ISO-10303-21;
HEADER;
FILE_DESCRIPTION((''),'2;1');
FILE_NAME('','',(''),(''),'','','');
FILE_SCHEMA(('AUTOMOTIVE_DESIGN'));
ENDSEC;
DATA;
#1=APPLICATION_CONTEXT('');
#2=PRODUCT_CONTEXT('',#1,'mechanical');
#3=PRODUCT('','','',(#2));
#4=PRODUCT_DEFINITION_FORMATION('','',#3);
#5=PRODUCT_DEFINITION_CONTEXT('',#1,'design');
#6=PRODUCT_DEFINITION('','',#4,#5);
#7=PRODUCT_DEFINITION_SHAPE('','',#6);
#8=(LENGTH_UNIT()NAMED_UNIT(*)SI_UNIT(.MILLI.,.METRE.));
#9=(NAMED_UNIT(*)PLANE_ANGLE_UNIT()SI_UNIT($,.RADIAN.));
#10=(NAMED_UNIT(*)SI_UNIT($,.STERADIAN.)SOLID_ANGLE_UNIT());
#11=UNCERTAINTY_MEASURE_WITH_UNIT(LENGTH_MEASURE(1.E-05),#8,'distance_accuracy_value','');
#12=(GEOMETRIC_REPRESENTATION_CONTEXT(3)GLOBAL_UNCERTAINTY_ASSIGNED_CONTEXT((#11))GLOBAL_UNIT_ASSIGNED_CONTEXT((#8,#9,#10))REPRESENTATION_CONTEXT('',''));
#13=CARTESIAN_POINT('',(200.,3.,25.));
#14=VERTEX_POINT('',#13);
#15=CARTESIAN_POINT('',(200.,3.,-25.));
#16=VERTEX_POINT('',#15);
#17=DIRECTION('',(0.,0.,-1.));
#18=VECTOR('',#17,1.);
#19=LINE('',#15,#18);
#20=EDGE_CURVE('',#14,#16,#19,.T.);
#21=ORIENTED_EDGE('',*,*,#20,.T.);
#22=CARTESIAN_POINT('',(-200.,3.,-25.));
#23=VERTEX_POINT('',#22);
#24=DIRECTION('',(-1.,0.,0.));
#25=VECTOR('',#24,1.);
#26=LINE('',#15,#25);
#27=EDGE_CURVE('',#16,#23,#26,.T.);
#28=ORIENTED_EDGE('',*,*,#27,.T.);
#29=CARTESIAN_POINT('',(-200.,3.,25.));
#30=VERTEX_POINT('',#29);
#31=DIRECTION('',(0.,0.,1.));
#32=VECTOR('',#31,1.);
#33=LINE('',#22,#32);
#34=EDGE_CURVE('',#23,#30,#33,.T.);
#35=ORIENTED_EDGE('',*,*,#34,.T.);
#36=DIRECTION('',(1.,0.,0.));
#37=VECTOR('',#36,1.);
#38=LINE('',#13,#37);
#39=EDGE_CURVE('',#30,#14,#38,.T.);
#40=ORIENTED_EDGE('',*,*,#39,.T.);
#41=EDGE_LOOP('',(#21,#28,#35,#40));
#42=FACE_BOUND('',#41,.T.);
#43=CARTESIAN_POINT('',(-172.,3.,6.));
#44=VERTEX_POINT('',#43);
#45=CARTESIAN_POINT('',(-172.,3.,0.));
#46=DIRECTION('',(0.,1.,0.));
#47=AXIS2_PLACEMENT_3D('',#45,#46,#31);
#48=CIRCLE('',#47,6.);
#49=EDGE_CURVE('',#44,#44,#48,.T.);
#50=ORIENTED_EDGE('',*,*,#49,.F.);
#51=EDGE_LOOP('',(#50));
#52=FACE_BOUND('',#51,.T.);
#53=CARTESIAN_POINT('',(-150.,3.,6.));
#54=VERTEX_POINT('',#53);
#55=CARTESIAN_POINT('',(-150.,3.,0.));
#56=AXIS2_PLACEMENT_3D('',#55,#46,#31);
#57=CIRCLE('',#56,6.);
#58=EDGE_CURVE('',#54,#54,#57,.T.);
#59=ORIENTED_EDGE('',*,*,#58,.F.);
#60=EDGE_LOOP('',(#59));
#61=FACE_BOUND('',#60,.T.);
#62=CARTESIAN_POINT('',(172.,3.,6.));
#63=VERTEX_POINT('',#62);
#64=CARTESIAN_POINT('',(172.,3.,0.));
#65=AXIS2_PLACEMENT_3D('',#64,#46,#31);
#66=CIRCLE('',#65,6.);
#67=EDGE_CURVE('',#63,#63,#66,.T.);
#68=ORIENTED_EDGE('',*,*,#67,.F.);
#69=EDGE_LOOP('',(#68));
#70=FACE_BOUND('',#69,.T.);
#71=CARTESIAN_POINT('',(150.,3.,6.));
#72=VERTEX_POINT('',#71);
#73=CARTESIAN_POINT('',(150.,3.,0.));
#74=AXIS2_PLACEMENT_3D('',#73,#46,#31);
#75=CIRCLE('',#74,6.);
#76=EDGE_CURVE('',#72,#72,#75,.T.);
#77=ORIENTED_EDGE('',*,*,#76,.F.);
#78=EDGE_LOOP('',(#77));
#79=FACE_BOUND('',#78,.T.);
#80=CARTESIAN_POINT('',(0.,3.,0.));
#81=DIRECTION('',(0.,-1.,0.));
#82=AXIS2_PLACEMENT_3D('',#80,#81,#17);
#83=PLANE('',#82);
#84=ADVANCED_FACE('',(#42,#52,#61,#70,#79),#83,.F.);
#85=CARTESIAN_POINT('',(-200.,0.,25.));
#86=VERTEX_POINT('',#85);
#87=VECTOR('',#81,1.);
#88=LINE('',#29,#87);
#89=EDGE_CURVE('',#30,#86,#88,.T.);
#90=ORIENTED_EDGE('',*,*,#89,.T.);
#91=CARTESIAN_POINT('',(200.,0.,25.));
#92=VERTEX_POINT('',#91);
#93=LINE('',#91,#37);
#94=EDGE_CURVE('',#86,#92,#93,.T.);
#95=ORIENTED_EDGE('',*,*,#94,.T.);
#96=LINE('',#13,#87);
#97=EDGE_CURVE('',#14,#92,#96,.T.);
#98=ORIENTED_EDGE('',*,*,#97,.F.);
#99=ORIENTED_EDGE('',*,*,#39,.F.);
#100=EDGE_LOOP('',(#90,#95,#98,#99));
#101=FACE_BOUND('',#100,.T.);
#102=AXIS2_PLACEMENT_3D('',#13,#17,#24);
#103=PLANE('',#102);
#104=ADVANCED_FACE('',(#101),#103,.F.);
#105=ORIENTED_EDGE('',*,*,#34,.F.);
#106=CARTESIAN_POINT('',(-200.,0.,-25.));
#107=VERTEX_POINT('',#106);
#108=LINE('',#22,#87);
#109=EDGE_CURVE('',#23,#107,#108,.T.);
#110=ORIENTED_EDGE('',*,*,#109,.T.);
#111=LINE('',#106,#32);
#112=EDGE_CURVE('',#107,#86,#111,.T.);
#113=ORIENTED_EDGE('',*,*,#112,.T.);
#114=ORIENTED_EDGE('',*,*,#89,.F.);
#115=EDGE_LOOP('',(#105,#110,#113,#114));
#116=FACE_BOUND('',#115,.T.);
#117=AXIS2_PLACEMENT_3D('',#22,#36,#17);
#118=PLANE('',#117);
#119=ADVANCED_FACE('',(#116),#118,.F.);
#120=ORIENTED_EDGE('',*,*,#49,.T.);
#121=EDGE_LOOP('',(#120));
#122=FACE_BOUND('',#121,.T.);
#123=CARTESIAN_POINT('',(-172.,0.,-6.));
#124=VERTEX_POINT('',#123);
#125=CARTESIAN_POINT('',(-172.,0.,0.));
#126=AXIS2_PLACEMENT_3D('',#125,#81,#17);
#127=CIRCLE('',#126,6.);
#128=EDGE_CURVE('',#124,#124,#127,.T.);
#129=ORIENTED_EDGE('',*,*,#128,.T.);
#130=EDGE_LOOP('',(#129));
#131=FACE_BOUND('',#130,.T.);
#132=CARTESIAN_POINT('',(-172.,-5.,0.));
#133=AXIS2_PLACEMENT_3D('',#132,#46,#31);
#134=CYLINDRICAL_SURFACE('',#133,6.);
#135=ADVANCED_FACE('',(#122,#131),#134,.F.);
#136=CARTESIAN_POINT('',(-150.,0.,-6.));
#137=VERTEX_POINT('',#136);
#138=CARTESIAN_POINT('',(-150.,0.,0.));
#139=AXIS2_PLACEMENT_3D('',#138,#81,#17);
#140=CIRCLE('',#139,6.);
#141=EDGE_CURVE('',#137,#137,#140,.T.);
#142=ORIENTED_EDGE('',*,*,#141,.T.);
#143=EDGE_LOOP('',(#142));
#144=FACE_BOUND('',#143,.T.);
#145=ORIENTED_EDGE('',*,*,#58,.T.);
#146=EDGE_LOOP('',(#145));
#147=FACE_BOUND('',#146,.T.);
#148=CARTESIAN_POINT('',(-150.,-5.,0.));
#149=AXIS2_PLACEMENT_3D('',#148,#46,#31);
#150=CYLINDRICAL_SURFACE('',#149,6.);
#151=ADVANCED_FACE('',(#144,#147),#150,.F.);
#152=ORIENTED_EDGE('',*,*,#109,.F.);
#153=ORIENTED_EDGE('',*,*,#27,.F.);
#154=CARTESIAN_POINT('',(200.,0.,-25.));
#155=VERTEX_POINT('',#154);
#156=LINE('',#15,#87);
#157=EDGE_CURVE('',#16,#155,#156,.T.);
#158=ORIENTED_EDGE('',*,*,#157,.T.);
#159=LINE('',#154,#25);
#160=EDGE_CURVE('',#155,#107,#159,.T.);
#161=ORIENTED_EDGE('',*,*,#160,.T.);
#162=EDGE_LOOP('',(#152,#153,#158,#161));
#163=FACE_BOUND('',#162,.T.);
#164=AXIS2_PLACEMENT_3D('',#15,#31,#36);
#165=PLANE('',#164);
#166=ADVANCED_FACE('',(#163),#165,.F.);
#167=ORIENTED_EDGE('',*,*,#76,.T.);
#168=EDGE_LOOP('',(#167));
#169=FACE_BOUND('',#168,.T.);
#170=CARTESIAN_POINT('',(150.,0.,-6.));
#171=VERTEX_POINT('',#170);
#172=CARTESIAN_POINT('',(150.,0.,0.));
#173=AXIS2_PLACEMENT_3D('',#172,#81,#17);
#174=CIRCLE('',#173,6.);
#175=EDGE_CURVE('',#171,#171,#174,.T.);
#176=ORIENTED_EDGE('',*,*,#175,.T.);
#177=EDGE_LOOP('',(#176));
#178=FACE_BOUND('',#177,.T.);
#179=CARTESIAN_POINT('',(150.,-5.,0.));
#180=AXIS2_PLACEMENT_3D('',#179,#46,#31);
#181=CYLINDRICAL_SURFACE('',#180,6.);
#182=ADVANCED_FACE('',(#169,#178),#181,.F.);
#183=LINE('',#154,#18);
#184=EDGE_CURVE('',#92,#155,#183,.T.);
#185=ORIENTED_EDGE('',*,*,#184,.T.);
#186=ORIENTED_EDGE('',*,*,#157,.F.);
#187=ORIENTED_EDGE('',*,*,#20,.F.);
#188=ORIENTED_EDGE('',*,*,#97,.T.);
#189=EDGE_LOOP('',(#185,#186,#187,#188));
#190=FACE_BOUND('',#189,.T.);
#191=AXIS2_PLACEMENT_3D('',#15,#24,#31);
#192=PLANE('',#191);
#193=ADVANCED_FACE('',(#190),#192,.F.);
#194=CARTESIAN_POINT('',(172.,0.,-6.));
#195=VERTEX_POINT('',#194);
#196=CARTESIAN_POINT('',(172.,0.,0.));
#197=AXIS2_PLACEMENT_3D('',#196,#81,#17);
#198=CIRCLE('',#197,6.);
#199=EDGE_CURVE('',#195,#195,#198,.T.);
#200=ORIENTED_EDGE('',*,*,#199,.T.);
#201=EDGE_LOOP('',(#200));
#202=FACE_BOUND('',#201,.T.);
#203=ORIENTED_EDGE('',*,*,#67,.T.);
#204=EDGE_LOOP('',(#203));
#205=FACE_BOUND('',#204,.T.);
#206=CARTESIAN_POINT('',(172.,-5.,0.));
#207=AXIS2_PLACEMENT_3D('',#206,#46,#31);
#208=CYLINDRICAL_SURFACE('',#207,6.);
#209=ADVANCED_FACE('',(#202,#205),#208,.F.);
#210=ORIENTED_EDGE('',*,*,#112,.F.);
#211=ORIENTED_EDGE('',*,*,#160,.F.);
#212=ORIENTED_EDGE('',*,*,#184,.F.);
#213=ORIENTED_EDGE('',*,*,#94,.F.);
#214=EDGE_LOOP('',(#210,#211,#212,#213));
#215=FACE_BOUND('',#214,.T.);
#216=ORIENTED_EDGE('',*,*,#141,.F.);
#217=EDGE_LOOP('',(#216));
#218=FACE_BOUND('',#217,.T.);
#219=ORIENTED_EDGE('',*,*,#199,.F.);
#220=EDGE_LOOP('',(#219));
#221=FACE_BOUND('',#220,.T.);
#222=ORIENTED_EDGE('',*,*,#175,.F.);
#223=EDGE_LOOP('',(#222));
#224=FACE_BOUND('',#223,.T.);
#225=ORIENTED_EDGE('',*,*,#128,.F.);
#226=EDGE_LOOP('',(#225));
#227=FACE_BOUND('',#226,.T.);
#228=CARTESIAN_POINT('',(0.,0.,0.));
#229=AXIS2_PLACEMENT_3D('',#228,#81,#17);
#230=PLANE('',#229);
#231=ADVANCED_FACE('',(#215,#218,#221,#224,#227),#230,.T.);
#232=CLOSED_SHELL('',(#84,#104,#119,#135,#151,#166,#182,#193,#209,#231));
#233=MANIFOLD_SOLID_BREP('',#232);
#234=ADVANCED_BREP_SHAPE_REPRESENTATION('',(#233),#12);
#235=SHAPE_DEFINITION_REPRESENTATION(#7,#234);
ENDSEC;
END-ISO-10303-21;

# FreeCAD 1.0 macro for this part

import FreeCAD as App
import Part
import Sketcher
from FreeCAD import Vector

doc = App.newDocument("Part")
body = doc.addObject("PartDesign::Body", "Body")

sketch1 = doc.addObject("Sketcher::SketchObject", "Sketch")
body.addObject(sketch1)
sketch1.AttachmentSupport = (doc.XZ_Plane, [""])
sketch1.MapMode = "FlatFace"
sketch1.addGeometry([
    Part.LineSegment(Vector(-200, -25, 0), Vector(-200, 25, 0)),
    Part.LineSegment(Vector(-200, 25, 0), Vector(200, 25, 0)),
    Part.LineSegment(Vector(200, 25, 0), Vector(200, -25, 0)),
    Part.LineSegment(Vector(200, -25, 0), Vector(-200, -25, 0)),
], False)
sketch1.addConstraint([
    Sketcher.Constraint("Coincident", 0, 2, 1, 1),
    Sketcher.Constraint("Coincident", 1, 2, 2, 1),
    Sketcher.Constraint("Coincident", 2, 2, 3, 1),
    Sketcher.Constraint("Coincident", 3, 2, 0, 1),
    Sketcher.Constraint("Vertical", 0),
    Sketcher.Constraint("Horizontal", 1),
    Sketcher.Constraint("Vertical", 2),
    Sketcher.Constraint("Horizontal", 3),
    Sketcher.Constraint("Symmetric", 0, 2, 2, 2, -1, 1),
    Sketcher.Constraint("DistanceX", 1, 1, 1, 2, 400.0),
    Sketcher.Constraint("DistanceY", 0, 1, 0, 2, 50.0),
])
pad1 = doc.addObject("PartDesign::Pad", "Pad")
body.addObject(pad1)
pad1.Profile = sketch1
pad1.Length = 3
pad1.Reversed = True

sketch2 = doc.addObject("Sketcher::SketchObject", "Sketch001")
body.addObject(sketch2)
sketch2.AttachmentSupport = (doc.XZ_Plane, [""])
sketch2.MapMode = "FlatFace"
sketch2.AttachmentOffset = App.Placement(Vector(0, 0, -3), App.Rotation())
sketch2.addGeometry([
    Part.Circle(Vector(-172, 0, 0), Vector(0, 0, 1), 6),
    Part.Circle(Vector(-150, 0, 0), Vector(0, 0, 1), 6),
    Part.Circle(Vector(150, 0, 0), Vector(0, 0, 1), 6),
    Part.Circle(Vector(172, 0, 0), Vector(0, 0, 1), 6),
], False)
sketch2.addConstraint([
    Sketcher.Constraint("Equal", 0, 1),
    Sketcher.Constraint("Equal", 1, 2),
    Sketcher.Constraint("Equal", 2, 3),
    Sketcher.Constraint("Symmetric", 1, 3, 2, 3, -1, 1),
    Sketcher.Constraint("Symmetric", 0, 3, 3, 3, -1, 1),
    Sketcher.Constraint("PointOnObject", 0, 3, -1),
    Sketcher.Constraint("PointOnObject", 1, 3, -1),
    Sketcher.Constraint("Diameter", 0, 12.0),
    Sketcher.Constraint("DistanceX", 0, 3, -1, 1, 172.0),
    Sketcher.Constraint("DistanceX", 1, 3, -1, 1, 150.0),
])
pocket1 = doc.addObject("PartDesign::Pocket", "Pocket")
body.addObject(pocket1)
pocket1.Profile = sketch2
pocket1.Length = 8
pocket1.Reversed = True

doc.recompute()
